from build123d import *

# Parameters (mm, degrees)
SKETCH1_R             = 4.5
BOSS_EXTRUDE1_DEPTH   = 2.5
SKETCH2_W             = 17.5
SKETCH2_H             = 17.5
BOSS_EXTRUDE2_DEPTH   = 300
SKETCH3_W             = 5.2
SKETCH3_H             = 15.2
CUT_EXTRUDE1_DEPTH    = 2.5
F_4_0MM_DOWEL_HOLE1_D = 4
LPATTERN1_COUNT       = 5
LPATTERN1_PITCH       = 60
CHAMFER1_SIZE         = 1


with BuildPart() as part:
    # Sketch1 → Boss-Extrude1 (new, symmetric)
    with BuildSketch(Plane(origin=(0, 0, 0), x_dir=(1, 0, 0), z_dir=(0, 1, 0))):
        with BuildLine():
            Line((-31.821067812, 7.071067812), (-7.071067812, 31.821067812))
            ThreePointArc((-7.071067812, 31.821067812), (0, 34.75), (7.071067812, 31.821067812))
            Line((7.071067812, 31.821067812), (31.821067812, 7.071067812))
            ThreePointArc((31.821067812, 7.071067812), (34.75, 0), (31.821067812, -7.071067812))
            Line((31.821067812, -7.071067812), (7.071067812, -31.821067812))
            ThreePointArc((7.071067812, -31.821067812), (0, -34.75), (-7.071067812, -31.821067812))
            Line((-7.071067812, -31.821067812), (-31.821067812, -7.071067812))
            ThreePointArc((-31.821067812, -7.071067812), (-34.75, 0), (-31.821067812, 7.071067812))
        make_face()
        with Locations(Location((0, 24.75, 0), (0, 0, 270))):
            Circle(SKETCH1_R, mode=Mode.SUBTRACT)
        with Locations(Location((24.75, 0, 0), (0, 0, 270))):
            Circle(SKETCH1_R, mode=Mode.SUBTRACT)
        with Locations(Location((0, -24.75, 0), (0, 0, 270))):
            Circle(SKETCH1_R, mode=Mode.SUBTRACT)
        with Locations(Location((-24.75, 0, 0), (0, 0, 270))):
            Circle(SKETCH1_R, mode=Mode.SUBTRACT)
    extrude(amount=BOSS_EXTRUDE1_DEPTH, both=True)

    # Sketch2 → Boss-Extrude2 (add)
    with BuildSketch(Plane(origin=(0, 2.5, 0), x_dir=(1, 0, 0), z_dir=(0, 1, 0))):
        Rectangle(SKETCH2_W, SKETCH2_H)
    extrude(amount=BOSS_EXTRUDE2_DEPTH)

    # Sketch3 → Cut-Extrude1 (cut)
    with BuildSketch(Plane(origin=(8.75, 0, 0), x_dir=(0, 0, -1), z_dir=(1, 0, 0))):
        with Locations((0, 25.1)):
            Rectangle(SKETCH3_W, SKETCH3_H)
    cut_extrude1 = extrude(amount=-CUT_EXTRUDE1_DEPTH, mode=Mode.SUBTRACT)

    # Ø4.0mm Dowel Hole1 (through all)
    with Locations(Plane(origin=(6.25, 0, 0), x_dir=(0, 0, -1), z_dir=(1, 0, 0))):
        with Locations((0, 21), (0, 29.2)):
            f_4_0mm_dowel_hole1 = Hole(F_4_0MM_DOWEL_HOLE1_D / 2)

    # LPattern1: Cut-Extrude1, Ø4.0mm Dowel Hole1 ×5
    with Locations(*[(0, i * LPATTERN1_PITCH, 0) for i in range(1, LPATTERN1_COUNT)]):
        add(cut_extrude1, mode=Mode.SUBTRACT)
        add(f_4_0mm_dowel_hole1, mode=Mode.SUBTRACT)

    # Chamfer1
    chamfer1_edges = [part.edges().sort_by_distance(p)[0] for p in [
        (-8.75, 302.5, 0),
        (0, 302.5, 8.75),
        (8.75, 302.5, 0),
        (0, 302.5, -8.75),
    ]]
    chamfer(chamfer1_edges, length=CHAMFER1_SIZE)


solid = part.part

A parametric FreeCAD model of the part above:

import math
import FreeCAD as App
import Part
import Sketcher
from FreeCAD import Vector


def edges_at(feature, points):
    """Names of the edges that pass closest to the given points."""
    edges = feature.Shape.Edges
    near = lambda p: min(range(len(edges)), key=lambda i: edges[i].distToShape(Part.Vertex(*p))[0])
    return sorted({f"Edge{near(p) + 1}" for p in points})


def add_polygon(sketch, points):
    """Adds a closed chain of lines whose ends are joined by coincident constraints."""
    first, n = sketch.GeometryCount, len(points)
    for a, b in zip(points, points[1:] + points[:1]):
        sketch.addGeometry(Part.LineSegment(App.Vector(*a, 0), App.Vector(*b, 0)), False)
    for i in range(n):
        sketch.addConstraint(Sketcher.Constraint("Coincident", first + i, 2, first + (i + 1) % n, 1))

doc = App.newDocument("Part")
body = doc.addObject("PartDesign::Body", "Body")

# Sketch on XZ plane
sketch1 = body.newObject("Sketcher::SketchObject", "Sketch")
sketch1.AttachmentSupport = (doc.getObject("XZ_Plane"), [""])
sketch1.MapMode = "FlatFace"
sketch1.addGeometry(Part.LineSegment(Vector(-7.071068, -31.821068, 0), Vector(-31.821068, -7.071068, 0)), False)
sketch1.addGeometry(Part.ArcOfCircle(Part.Circle(Vector(-24.75, 0, 0), Vector(0, 0, 1), 10), math.radians(135), math.radians(225)), False)
sketch1.addGeometry(Part.LineSegment(Vector(-31.821068, 7.071068, 0), Vector(-7.071068, 31.821068, 0)), False)
sketch1.addGeometry(Part.ArcOfCircle(Part.Circle(Vector(0, 24.75, 0), Vector(0, 0, 1), 10), math.radians(45), math.radians(135)), False)
sketch1.addGeometry(Part.LineSegment(Vector(7.071068, 31.821068, 0), Vector(31.821068, 7.071068, 0)), False)
sketch1.addGeometry(Part.ArcOfCircle(Part.Circle(Vector(24.75, 0, 0), Vector(0, 0, 1), 10), math.radians(-45), math.radians(45)), False)
sketch1.addGeometry(Part.LineSegment(Vector(31.821068, -7.071068, 0), Vector(7.071068, -31.821068, 0)), False)
sketch1.addGeometry(Part.ArcOfCircle(Part.Circle(Vector(0, -24.75, 0), Vector(0, 0, 1), 10), math.radians(-135), math.radians(-45)), False)
sketch1.addGeometry(Part.Circle(Vector(0, 24.75, 0), Vector(0, 0, 1), 4.5), False)
sketch1.addGeometry(Part.Circle(Vector(24.75, 0, 0), Vector(0, 0, 1), 4.5), False)
sketch1.addGeometry(Part.Circle(Vector(-24.75, 0, 0), Vector(0, 0, 1), 4.5), False)
sketch1.addGeometry(Part.Circle(Vector(0, -24.75, 0), Vector(0, 0, 1), 4.5), False)
sketch1.addConstraint(Sketcher.Constraint("Tangent", 0, 2, 1, 2))
sketch1.addConstraint(Sketcher.Constraint("Tangent", 1, 1, 2, 1))
sketch1.addConstraint(Sketcher.Constraint("Tangent", 2, 2, 3, 2))
sketch1.addConstraint(Sketcher.Constraint("Tangent", 3, 1, 4, 1))
sketch1.addConstraint(Sketcher.Constraint("Tangent", 4, 2, 5, 2))
sketch1.addConstraint(Sketcher.Constraint("Tangent", 5, 1, 6, 1))
sketch1.addConstraint(Sketcher.Constraint("Tangent", 6, 2, 7, 2))
sketch1.addConstraint(Sketcher.Constraint("Tangent", 7, 1, 0, 1))
sketch1.addConstraint(Sketcher.Constraint("Coincident", 8, 3, 3, 3))
sketch1.addConstraint(Sketcher.Constraint("Coincident", 9, 3, 5, 3))
sketch1.addConstraint(Sketcher.Constraint("Coincident", 10, 3, 1, 3))
sketch1.addConstraint(Sketcher.Constraint("Coincident", 11, 3, 7, 3))
sketch1.addConstraint(Sketcher.Constraint("Equal", 1, 3))
sketch1.addConstraint(Sketcher.Constraint("Equal", 3, 5))
sketch1.addConstraint(Sketcher.Constraint("Equal", 5, 7))
sketch1.addConstraint(Sketcher.Constraint("Equal", 8, 9))
sketch1.addConstraint(Sketcher.Constraint("Equal", 9, 10))
sketch1.addConstraint(Sketcher.Constraint("Equal", 10, 11))
sketch1.addConstraint(Sketcher.Constraint("Symmetric", 1, 3, 5, 3, -1, 1))
sketch1.addConstraint(Sketcher.Constraint("Symmetric", 3, 3, 7, 3, -1, 1))
sketch1.addConstraint(Sketcher.Constraint("Symmetric", 2, 2, 3, 1, -2))
sketch1.addConstraint(Sketcher.Constraint("Perpendicular", 0, 2))
sketch1.addConstraint(Sketcher.Constraint("Diameter", 8, 9.0))
sketch1.addConstraint(Sketcher.Constraint("Radius", 1, 10.0))
sketch1.addConstraint(Sketcher.Constraint("DistanceX", 1, 3, 5, 3, 49.5))
pad1 = body.newObject("PartDesign::Pad", "Pad")
pad1.Profile = sketch1
pad1.Length = 5
pad1.Midplane = True

# Sketch on XZ plane
sketch2 = body.newObject("Sketcher::SketchObject", "Sketch001")
sketch2.AttachmentSupport = (doc.getObject("XZ_Plane"), [""])
sketch2.MapMode = "FlatFace"
sketch2.AttachmentOffset = App.Placement(Vector(0, 0, -2.5), App.Rotation())
add_polygon(sketch2, [(-8.75, -8.75), (-8.75, 8.75), (8.75, 8.75), (8.75, -8.75)])  # lines 0-3
sketch2.addConstraint(Sketcher.Constraint("Vertical", 0))
sketch2.addConstraint(Sketcher.Constraint("Horizontal", 1))
sketch2.addConstraint(Sketcher.Constraint("Vertical", 2))
sketch2.addConstraint(Sketcher.Constraint("Horizontal", 3))
sketch2.addConstraint(Sketcher.Constraint("Symmetric", 0, 2, 2, 2, -1, 1))
sketch2.addConstraint(Sketcher.Constraint("Equal", 3, 0))
sketch2.addConstraint(Sketcher.Constraint("DistanceX", 1, 1, 1, 2, 17.5))
pad2 = body.newObject("PartDesign::Pad", "Pad001")
pad2.Profile = sketch2
pad2.Length = 300
pad2.Reversed = True

# Sketch on YZ plane
sketch3 = body.newObject("Sketcher::SketchObject", "Sketch002")
sketch3.AttachmentSupport = (doc.getObject("YZ_Plane"), [""])
sketch3.MapMode = "FlatFace"
sketch3.AttachmentOffset = App.Placement(Vector(0, 0, 8.75), App.Rotation())
add_polygon(sketch3, [(32.7, 2.6), (17.5, 2.6), (17.5, -2.6), (32.7, -2.6)])  # lines 0-3
sketch3.addConstraint(Sketcher.Constraint("Horizontal", 0))
sketch3.addConstraint(Sketcher.Constraint("Vertical", 1))
sketch3.addConstraint(Sketcher.Constraint("Horizontal", 2))
sketch3.addConstraint(Sketcher.Constraint("Vertical", 3))
sketch3.addConstraint(Sketcher.Constraint("DistanceX", 0, 2, 0, 1, 15.2))
sketch3.addConstraint(Sketcher.Constraint("DistanceY", 1, 2, 1, 1, 5.2))
sketch3.addConstraint(Sketcher.Constraint("DistanceX", -1, 1, 0, 2, 17.5))
sketch3.addConstraint(Sketcher.Constraint("DistanceY", -1, 1, 0, 2, 2.6))
pocket1 = body.newObject("PartDesign::Pocket", "Pocket")
pocket1.Profile = sketch3
pocket1.Length = 2.5

# Sketch on YZ plane
sketch4 = body.newObject("Sketcher::SketchObject", "Sketch003")
sketch4.AttachmentSupport = (doc.getObject("YZ_Plane"), [""])
sketch4.MapMode = "FlatFace"
sketch4.AttachmentOffset = App.Placement(Vector(0, 0, 6.25), App.Rotation())
sketch4.addGeometry(Part.Circle(Vector(21, 0, 0), Vector(0, 0, 1), 2), False)
sketch4.addGeometry(Part.Circle(Vector(29.2, 0, 0), Vector(0, 0, 1), 2), False)
sketch4.addConstraint(Sketcher.Constraint("Equal", 0, 1))
sketch4.addConstraint(Sketcher.Constraint("PointOnObject", 0, 3, -1))
sketch4.addConstraint(Sketcher.Constraint("PointOnObject", 1, 3, -1))
sketch4.addConstraint(Sketcher.Constraint("Diameter", 0, 4.0))
sketch4.addConstraint(Sketcher.Constraint("DistanceX", -1, 1, 0, 3, 21.0))
sketch4.addConstraint(Sketcher.Constraint("DistanceX", -1, 1, 1, 3, 29.2))
doc.recompute()
hole = body.newObject("PartDesign::Hole", "Hole")
hole.Profile = sketch4
hole.ThreadType = "None"
hole.Diameter = 4
hole.DepthType = "ThroughAll"
doc.recompute()

linearpattern = body.newObject("PartDesign::LinearPattern", "LinearPattern")
linearpattern.Originals = [pocket1, hole]
linearpattern.Direction = (doc.getObject("Y_Axis"), [""])
linearpattern.Mode = "offset"
linearpattern.Offset = 60
linearpattern.Occurrences = 5
body.Tip = linearpattern
doc.recompute()

chamfer = body.newObject("PartDesign::Chamfer", "Chamfer")
chamfer.Base = (linearpattern, edges_at(linearpattern, [
    (-8.75, 302.5, 0),
    (0, 302.5, 8.75),
    (8.75, 302.5, 0),
    (0, 302.5, -8.75),
]))
chamfer.Size = 1

doc.recompute()
